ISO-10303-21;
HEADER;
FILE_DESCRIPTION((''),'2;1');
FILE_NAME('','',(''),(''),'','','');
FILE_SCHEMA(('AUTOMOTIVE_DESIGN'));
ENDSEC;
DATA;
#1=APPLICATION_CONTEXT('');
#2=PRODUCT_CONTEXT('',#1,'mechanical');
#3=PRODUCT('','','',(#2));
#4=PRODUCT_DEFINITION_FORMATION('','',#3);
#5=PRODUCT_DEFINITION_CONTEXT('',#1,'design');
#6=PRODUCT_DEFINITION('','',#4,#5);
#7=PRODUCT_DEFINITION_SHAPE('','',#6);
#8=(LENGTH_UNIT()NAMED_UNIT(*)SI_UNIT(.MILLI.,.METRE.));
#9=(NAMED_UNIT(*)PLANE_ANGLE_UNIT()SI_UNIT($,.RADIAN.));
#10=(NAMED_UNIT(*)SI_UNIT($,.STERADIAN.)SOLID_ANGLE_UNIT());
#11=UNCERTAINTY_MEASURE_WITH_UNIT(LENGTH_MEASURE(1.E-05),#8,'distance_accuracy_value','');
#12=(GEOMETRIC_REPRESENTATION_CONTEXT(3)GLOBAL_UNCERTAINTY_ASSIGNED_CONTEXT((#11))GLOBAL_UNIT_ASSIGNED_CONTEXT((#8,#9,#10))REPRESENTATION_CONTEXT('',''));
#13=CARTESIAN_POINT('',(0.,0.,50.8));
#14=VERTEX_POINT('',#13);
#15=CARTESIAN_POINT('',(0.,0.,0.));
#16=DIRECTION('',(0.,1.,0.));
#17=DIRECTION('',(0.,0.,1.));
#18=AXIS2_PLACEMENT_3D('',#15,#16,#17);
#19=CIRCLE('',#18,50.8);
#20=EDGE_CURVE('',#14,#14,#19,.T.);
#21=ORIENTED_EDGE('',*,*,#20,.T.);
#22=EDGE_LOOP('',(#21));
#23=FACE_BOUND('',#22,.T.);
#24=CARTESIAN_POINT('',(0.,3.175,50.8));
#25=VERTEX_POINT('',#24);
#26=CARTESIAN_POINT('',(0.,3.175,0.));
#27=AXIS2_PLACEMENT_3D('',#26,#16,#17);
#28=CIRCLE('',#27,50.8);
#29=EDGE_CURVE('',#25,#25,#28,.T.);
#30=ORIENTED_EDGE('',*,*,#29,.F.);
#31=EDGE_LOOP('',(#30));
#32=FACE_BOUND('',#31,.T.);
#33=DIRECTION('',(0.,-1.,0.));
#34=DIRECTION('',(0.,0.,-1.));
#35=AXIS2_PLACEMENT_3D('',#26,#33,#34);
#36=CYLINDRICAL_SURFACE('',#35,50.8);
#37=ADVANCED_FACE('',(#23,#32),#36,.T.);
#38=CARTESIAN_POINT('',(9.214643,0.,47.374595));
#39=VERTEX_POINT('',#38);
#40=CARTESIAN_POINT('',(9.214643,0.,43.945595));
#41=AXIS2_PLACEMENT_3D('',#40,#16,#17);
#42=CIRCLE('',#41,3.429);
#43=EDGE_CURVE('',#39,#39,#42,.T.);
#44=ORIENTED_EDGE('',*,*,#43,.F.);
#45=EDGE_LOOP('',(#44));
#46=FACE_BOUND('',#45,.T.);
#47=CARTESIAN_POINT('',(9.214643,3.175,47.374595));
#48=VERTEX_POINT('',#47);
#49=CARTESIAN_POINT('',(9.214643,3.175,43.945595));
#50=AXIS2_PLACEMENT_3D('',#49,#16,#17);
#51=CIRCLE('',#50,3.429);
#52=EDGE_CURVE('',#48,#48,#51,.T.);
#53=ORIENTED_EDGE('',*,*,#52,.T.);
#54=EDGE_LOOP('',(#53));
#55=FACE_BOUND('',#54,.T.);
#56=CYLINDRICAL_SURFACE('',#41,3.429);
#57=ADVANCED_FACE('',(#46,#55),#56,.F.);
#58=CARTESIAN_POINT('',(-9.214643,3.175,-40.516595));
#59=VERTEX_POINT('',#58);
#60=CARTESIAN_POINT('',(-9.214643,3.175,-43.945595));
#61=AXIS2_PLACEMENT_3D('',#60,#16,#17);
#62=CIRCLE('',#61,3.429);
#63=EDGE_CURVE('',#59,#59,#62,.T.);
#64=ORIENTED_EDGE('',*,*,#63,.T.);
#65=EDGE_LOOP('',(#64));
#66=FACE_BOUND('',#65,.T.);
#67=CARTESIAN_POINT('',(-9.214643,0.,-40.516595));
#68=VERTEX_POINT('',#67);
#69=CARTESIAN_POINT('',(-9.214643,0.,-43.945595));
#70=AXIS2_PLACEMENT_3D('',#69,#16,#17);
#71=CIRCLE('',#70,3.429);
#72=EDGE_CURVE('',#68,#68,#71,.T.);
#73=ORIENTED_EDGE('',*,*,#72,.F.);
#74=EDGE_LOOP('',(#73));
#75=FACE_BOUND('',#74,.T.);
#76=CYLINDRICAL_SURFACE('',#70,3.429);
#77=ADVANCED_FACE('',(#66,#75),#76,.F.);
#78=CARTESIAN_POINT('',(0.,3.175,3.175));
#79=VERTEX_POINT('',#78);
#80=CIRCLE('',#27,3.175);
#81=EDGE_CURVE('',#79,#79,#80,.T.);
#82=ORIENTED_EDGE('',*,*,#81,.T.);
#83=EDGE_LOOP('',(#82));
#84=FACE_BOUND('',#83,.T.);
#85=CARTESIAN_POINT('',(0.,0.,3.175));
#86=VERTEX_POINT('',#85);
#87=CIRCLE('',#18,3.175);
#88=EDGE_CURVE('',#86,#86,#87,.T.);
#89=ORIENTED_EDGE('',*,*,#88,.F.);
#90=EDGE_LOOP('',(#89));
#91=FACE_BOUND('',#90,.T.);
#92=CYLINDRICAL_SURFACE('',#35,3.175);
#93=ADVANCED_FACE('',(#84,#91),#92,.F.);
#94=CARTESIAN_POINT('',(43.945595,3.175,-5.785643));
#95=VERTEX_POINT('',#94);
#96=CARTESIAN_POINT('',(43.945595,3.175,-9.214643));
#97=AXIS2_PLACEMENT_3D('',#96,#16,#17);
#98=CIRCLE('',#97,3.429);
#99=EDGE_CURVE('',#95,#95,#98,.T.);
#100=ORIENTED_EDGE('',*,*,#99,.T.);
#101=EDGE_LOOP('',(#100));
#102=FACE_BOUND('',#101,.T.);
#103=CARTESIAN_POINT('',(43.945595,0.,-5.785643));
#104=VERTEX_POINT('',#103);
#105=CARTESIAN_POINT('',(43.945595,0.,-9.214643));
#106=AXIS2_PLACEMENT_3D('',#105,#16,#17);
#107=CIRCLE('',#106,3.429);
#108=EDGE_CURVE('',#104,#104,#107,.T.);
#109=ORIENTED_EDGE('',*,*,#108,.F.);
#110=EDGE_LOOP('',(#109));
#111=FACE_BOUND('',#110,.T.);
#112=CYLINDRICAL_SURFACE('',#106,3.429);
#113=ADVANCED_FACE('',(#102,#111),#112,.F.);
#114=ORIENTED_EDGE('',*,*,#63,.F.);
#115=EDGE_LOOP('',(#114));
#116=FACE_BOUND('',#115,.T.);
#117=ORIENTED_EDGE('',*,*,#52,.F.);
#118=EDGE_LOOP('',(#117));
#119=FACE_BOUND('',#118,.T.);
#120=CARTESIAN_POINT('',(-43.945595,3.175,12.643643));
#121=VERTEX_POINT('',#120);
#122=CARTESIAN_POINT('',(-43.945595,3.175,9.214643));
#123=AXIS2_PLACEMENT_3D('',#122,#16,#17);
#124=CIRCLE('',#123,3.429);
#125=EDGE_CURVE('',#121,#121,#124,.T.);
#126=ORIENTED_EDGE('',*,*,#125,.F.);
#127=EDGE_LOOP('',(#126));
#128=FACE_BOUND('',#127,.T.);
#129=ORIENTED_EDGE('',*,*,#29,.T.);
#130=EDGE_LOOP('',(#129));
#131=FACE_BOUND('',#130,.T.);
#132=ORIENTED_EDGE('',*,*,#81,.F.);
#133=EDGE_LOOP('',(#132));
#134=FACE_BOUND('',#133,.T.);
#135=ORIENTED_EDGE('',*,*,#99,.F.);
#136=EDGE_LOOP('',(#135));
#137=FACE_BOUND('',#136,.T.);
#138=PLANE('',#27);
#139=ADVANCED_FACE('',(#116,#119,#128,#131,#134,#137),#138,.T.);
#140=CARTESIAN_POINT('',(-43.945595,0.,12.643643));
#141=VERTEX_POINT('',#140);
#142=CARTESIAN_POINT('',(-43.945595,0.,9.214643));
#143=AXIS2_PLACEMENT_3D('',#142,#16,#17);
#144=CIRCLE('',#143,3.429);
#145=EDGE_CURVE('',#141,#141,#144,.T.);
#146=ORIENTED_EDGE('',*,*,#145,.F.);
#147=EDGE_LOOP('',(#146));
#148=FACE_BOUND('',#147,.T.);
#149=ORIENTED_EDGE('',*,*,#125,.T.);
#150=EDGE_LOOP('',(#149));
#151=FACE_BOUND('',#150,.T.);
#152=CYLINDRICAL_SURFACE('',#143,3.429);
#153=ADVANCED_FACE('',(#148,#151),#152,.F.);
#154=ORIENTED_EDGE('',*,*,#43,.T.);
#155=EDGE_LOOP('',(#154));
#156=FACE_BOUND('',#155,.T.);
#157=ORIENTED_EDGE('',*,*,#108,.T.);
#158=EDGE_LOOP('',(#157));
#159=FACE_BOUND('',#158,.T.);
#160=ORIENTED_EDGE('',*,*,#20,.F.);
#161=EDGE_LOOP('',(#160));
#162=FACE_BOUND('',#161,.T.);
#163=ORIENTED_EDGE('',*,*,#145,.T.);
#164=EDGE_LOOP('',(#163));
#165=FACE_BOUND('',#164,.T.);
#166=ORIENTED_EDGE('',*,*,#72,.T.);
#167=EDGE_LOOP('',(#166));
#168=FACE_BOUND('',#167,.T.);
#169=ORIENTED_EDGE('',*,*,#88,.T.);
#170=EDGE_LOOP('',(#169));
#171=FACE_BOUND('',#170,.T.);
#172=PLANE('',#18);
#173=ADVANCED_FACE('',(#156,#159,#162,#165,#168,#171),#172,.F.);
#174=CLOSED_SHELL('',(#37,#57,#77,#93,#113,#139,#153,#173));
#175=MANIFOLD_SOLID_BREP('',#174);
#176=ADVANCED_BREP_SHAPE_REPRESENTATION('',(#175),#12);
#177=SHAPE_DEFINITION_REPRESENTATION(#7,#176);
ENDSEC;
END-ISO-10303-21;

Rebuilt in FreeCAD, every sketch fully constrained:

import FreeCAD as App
import Part
import Sketcher

V = App.Vector
Q = App.Units.Quantity

doc = App.newDocument("Part")
params = doc.addObject("Spreadsheet::Sheet", "Params")
for row, (alias, value) in enumerate([
    ("sketch1_diameter", "4 in"),
    ("sketch1_diameter2", "0.25 in"),
    ("pad1_length", "0.125 in"),
    ("sketch2_diameter", "0.27 in"),
    ("pocket1_length", "0.125 in"),
], start=1):
    params.set(f"A{row}", alias)
    params.set(f"B{row}", "=" + value)
    params.setAlias(f"B{row}", alias)

body = doc.addObject("PartDesign::Body", "Body")

# Sketch on XZ plane
sketch1 = body.newObject("Sketcher::SketchObject", "Sketch")
sketch1.AttachmentSupport = (doc.getObject("XZ_Plane"), [""])
sketch1.MapMode = "FlatFace"
sketch1.addGeometry(Part.Circle(V(0, 0, 0), V(0, 0, 1), 50.8), False)
sketch1.addGeometry(Part.Circle(V(0, 0, 0), V(0, 0, 1), 3.175), False)
sketch1.addConstraint(Sketcher.Constraint("Coincident", 0, 3, -1, 1))
sketch1.addConstraint(Sketcher.Constraint("Coincident", 1, 3, -1, 1))
sketch1.addConstraint(Sketcher.Constraint("Diameter", 0, Q("4 in")))
sketch1.addConstraint(Sketcher.Constraint("Diameter", 1, Q("0.25 in")))
sketch1.setExpression("Constraints[2]", "Params.sketch1_diameter")
sketch1.setExpression("Constraints[3]", "Params.sketch1_diameter2")
pad1 = body.newObject("PartDesign::Pad", "Pad")
pad1.Profile = sketch1
pad1.setExpression("Length", "Params.pad1_length")
pad1.Reversed = True

# Sketch on XZ plane
sketch2 = body.newObject("Sketcher::SketchObject", "Sketch001")
sketch2.AttachmentSupport = (doc.getObject("XZ_Plane"), [""])
sketch2.MapMode = "FlatFace"
sketch2.AttachmentOffset = App.Placement(V(0, 0, -0.125 * 25.4), App.Rotation())
sketch2.addGeometry(Part.Circle(V(-9.214643, -43.945595, 0), V(0, 0, 1), 3.429), False)
sketch2.addGeometry(Part.Circle(V(-43.945595, 9.214643, 0), V(0, 0, 1), 3.429), False)
sketch2.addGeometry(Part.Circle(V(43.945595, -9.214643, 0), V(0, 0, 1), 3.429), False)
sketch2.addGeometry(Part.Circle(V(9.214643, 43.945595, 0), V(0, 0, 1), 3.429), False)
sketch2.addConstraint(Sketcher.Constraint("Equal", 0, 1))
sketch2.addConstraint(Sketcher.Constraint("Equal", 1, 2))
sketch2.addConstraint(Sketcher.Constraint("Equal", 2, 3))
sketch2.addConstraint(Sketcher.Constraint("Symmetric", 1, 3, 2, 3, -1, 1))
sketch2.addConstraint(Sketcher.Constraint("Symmetric", 0, 3, 3, 3, -1, 1))
sketch2.addConstraint(Sketcher.Constraint("Diameter", 0, Q("0.27 in")))
sketch2.addConstraint(Sketcher.Constraint("DistanceY", 0, 3, 1, 3, 53.160238))
sketch2.addConstraint(Sketcher.Constraint("DistanceX", 0, 3, 2, 3, 53.160238))
sketch2.addConstraint(Sketcher.Constraint("DistanceX", 1, 3, 2, 3, 87.891191))
sketch2.addConstraint(Sketcher.Constraint("DistanceY", 0, 3, 3, 3, 87.891191))
sketch2.setExpression("Constraints[5]", "Params.sketch2_diameter")
pocket1 = body.newObject("PartDesign::Pocket", "Pocket")
pocket1.Profile = sketch2
pocket1.setExpression("Length", "Params.pocket1_length")
pocket1.Reversed = True

doc.recompute()
